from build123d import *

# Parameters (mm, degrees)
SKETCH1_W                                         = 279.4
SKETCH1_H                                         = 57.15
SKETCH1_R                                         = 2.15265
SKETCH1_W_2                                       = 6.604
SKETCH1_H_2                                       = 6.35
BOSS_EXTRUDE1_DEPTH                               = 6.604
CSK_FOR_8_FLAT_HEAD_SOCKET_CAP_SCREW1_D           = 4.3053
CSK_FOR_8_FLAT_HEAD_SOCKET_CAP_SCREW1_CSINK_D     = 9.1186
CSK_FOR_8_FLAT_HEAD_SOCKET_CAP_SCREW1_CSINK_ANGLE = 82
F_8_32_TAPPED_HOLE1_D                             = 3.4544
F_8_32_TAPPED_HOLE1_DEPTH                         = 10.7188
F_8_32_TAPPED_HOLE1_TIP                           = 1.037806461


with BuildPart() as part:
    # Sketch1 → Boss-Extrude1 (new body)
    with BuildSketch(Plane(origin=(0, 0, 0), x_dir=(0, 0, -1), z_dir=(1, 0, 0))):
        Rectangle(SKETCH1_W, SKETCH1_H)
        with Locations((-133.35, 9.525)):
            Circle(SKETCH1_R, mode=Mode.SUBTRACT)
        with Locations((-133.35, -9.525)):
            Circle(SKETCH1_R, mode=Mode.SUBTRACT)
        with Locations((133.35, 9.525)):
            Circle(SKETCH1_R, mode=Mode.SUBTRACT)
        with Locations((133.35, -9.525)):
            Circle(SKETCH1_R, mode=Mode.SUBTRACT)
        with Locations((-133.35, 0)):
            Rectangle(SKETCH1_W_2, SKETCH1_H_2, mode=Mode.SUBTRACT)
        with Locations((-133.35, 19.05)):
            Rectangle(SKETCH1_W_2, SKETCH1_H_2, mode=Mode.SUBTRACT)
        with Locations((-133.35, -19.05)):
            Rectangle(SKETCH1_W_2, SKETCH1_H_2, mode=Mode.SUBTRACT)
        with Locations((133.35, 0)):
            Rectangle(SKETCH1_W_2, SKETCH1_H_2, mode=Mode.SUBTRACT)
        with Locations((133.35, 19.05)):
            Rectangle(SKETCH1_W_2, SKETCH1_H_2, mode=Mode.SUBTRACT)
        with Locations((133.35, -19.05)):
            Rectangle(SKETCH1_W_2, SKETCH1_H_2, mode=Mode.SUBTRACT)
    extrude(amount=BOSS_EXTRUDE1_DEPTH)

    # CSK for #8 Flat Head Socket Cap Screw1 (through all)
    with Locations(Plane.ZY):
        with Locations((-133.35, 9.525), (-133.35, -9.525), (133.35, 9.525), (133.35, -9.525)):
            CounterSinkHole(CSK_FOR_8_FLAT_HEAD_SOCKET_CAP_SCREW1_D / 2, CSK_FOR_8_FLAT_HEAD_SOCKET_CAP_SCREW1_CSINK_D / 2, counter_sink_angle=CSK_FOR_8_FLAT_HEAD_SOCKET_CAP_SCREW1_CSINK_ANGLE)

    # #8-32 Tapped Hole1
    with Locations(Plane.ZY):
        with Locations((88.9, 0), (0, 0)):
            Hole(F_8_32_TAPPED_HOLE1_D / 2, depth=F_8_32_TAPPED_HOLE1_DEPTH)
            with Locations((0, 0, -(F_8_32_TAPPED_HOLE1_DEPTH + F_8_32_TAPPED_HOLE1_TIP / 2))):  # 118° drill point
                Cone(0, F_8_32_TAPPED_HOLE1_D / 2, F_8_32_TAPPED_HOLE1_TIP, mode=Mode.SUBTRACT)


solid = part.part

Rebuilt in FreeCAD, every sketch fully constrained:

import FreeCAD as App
import Part
import Sketcher

V = App.Vector
Q = App.Units.Quantity

doc = App.newDocument("Part")
body = doc.addObject("PartDesign::Body", "Body")

# Sketch on YZ plane
sketch1 = body.newObject("Sketcher::SketchObject", "Sketch")
sketch1.AttachmentSupport = (doc.getObject("YZ_Plane"), [""])
sketch1.MapMode = "FlatFace"
sketch1.addGeometry(Part.LineSegment(V(28.6, 139.7, 0), V(-28.6, 139.7, 0)), False)
sketch1.addGeometry(Part.LineSegment(V(-28.6, 139.7, 0), V(-28.6, -139.7, 0)), False)
sketch1.addGeometry(Part.LineSegment(V(-28.6, -139.7, 0), V(28.6, -139.7, 0)), False)
sketch1.addGeometry(Part.LineSegment(V(28.6, -139.7, 0), V(28.6, 139.7, 0)), False)
sketch1.addGeometry(Part.LineSegment(V(-22.2, 130, 0), V(-22.2, 136.7, 0)), False)
sketch1.addGeometry(Part.LineSegment(V(-22.2, 136.7, 0), V(-15.9, 136.7, 0)), False)
sketch1.addGeometry(Part.LineSegment(V(-15.9, 136.7, 0), V(-15.9, 130, 0)), False)
sketch1.addGeometry(Part.LineSegment(V(-15.9, 130, 0), V(-22.2, 130, 0)), False)
sketch1.addGeometry(Part.Circle(V(-9.5, 133.3, 0), V(0, 0, 1), 2.2), False)
sketch1.addGeometry(Part.LineSegment(V(-22.2, -136.7, 0), V(-22.2, -130, 0)), False)
sketch1.addGeometry(Part.LineSegment(V(-22.2, -130, 0), V(-15.9, -130, 0)), False)
sketch1.addGeometry(Part.LineSegment(V(-15.9, -130, 0), V(-15.9, -136.7, 0)), False)
sketch1.addGeometry(Part.LineSegment(V(-15.9, -136.7, 0), V(-22.2, -136.7, 0)), False)
sketch1.addGeometry(Part.Circle(V(-9.5, -133.3, 0), V(0, 0, 1), 2.2), False)
sketch1.addGeometry(Part.LineSegment(V(-3.2, 130, 0), V(-3.2, 136.7, 0)), False)
sketch1.addGeometry(Part.LineSegment(V(-3.2, 136.7, 0), V(3.2, 136.7, 0)), False)
sketch1.addGeometry(Part.LineSegment(V(3.2, 136.7, 0), V(3.2, 130, 0)), False)
sketch1.addGeometry(Part.LineSegment(V(3.2, 130, 0), V(-3.2, 130, 0)), False)
sketch1.addGeometry(Part.Circle(V(9.5, 133.3, 0), V(0, 0, 1), 2.2), False)
sketch1.addGeometry(Part.LineSegment(V(15.9, 130, 0), V(15.9, 136.7, 0)), False)
sketch1.addGeometry(Part.LineSegment(V(15.9, 136.7, 0), V(22.2, 136.7, 0)), False)
sketch1.addGeometry(Part.LineSegment(V(22.2, 136.7, 0), V(22.2, 130, 0)), False)
sketch1.addGeometry(Part.LineSegment(V(22.2, 130, 0), V(15.9, 130, 0)), False)
sketch1.addGeometry(Part.LineSegment(V(-3.2, -136.7, 0), V(-3.2, -130, 0)), False)
sketch1.addGeometry(Part.LineSegment(V(-3.2, -130, 0), V(3.2, -130, 0)), False)
sketch1.addGeometry(Part.LineSegment(V(3.2, -130, 0), V(3.2, -136.7, 0)), False)
sketch1.addGeometry(Part.LineSegment(V(3.2, -136.7, 0), V(-3.2, -136.7, 0)), False)
sketch1.addGeometry(Part.Circle(V(9.5, -133.3, 0), V(0, 0, 1), 2.2), False)
sketch1.addGeometry(Part.LineSegment(V(15.9, -136.7, 0), V(15.9, -130, 0)), False)
sketch1.addGeometry(Part.LineSegment(V(15.9, -130, 0), V(22.2, -130, 0)), False)
sketch1.addGeometry(Part.LineSegment(V(22.2, -130, 0), V(22.2, -136.7, 0)), False)
sketch1.addGeometry(Part.LineSegment(V(22.2, -136.7, 0), V(15.9, -136.7, 0)), False)
sketch1.addConstraint(Sketcher.Constraint("Coincident", 0, 2, 1, 1))
sketch1.addConstraint(Sketcher.Constraint("Coincident", 1, 2, 2, 1))
sketch1.addConstraint(Sketcher.Constraint("Coincident", 2, 2, 3, 1))
sketch1.addConstraint(Sketcher.Constraint("Coincident", 3, 2, 0, 1))
sketch1.addConstraint(Sketcher.Constraint("Coincident", 4, 2, 5, 1))
sketch1.addConstraint(Sketcher.Constraint("Coincident", 5, 2, 6, 1))
sketch1.addConstraint(Sketcher.Constraint("Coincident", 6, 2, 7, 1))
sketch1.addConstraint(Sketcher.Constraint("Coincident", 7, 2, 4, 1))
sketch1.addConstraint(Sketcher.Constraint("Coincident", 9, 2, 10, 1))
sketch1.addConstraint(Sketcher.Constraint("Coincident", 10, 2, 11, 1))
sketch1.addConstraint(Sketcher.Constraint("Coincident", 11, 2, 12, 1))
sketch1.addConstraint(Sketcher.Constraint("Coincident", 12, 2, 9, 1))
sketch1.addConstraint(Sketcher.Constraint("Coincident", 14, 2, 15, 1))
sketch1.addConstraint(Sketcher.Constraint("Coincident", 15, 2, 16, 1))
sketch1.addConstraint(Sketcher.Constraint("Coincident", 16, 2, 17, 1))
sketch1.addConstraint(Sketcher.Constraint("Coincident", 17, 2, 14, 1))
sketch1.addConstraint(Sketcher.Constraint("Coincident", 19, 2, 20, 1))
sketch1.addConstraint(Sketcher.Constraint("Coincident", 20, 2, 21, 1))
sketch1.addConstraint(Sketcher.Constraint("Coincident", 21, 2, 22, 1))
sketch1.addConstraint(Sketcher.Constraint("Coincident", 22, 2, 19, 1))
sketch1.addConstraint(Sketcher.Constraint("Coincident", 23, 2, 24, 1))
sketch1.addConstraint(Sketcher.Constraint("Coincident", 24, 2, 25, 1))
sketch1.addConstraint(Sketcher.Constraint("Coincident", 25, 2, 26, 1))
sketch1.addConstraint(Sketcher.Constraint("Coincident", 26, 2, 23, 1))
sketch1.addConstraint(Sketcher.Constraint("Coincident", 28, 2, 29, 1))
sketch1.addConstraint(Sketcher.Constraint("Coincident", 29, 2, 30, 1))
sketch1.addConstraint(Sketcher.Constraint("Coincident", 30, 2, 31, 1))
sketch1.addConstraint(Sketcher.Constraint("Coincident", 31, 2, 28, 1))
sketch1.addConstraint(Sketcher.Constraint("Horizontal", 0))
sketch1.addConstraint(Sketcher.Constraint("Vertical", 1))
sketch1.addConstraint(Sketcher.Constraint("Horizontal", 2))
sketch1.addConstraint(Sketcher.Constraint("Vertical", 3))
sketch1.addConstraint(Sketcher.Constraint("Vertical", 4))
sketch1.addConstraint(Sketcher.Constraint("Horizontal", 5))
sketch1.addConstraint(Sketcher.Constraint("Vertical", 6))
sketch1.addConstraint(Sketcher.Constraint("Horizontal", 7))
sketch1.addConstraint(Sketcher.Constraint("Vertical", 9))
sketch1.addConstraint(Sketcher.Constraint("Horizontal", 10))
sketch1.addConstraint(Sketcher.Constraint("Vertical", 11))
sketch1.addConstraint(Sketcher.Constraint("Horizontal", 12))
sketch1.addConstraint(Sketcher.Constraint("Vertical", 14))
sketch1.addConstraint(Sketcher.Constraint("Horizontal", 15))
sketch1.addConstraint(Sketcher.Constraint("Vertical", 16))
sketch1.addConstraint(Sketcher.Constraint("Horizontal", 17))
sketch1.addConstraint(Sketcher.Constraint("Vertical", 19))
sketch1.addConstraint(Sketcher.Constraint("Horizontal", 20))
sketch1.addConstraint(Sketcher.Constraint("Vertical", 21))
sketch1.addConstraint(Sketcher.Constraint("Horizontal", 22))
sketch1.addConstraint(Sketcher.Constraint("Vertical", 23))
sketch1.addConstraint(Sketcher.Constraint("Horizontal", 24))
sketch1.addConstraint(Sketcher.Constraint("Vertical", 25))
sketch1.addConstraint(Sketcher.Constraint("Horizontal", 26))
sketch1.addConstraint(Sketcher.Constraint("Vertical", 28))
sketch1.addConstraint(Sketcher.Constraint("Horizontal", 29))
sketch1.addConstraint(Sketcher.Constraint("Vertical", 30))
sketch1.addConstraint(Sketcher.Constraint("Horizontal", 31))
sketch1.addConstraint(Sketcher.Constraint("Equal", 8, 13))
sketch1.addConstraint(Sketcher.Constraint("Equal", 13, 18))
sketch1.addConstraint(Sketcher.Constraint("Equal", 18, 27))
sketch1.addConstraint(Sketcher.Constraint("Symmetric", 13, 3, 18, 3, -1, 1))
sketch1.addConstraint(Sketcher.Constraint("Symmetric", 8, 3, 27, 3, -1, 1))
sketch1.addConstraint(Sketcher.Constraint("Symmetric", 0, 2, 2, 2, -1, 1))
sketch1.addConstraint(Sketcher.Constraint("Symmetric", 11, 2, 19, 2, -1, 1))
sketch1.addConstraint(Sketcher.Constraint("Symmetric", 9, 2, 21, 2, -1, 1))
sketch1.addConstraint(Sketcher.Constraint("Symmetric", 16, 2, 23, 2, -1, 1))
sketch1.addConstraint(Sketcher.Constraint("Symmetric", 14, 2, 25, 2, -1, 1))
sketch1.addConstraint(Sketcher.Constraint("Symmetric", 6, 2, 28, 2, -1, 1))
sketch1.addConstraint(Sketcher.Constraint("Symmetric", 4, 2, 30, 2, -1, 1))
sketch1.addConstraint(Sketcher.Constraint("Symmetric", 8, 3, 18, 3, -2))
sketch1.addConstraint(Sketcher.Constraint("Symmetric", 5, 2, 19, 2, -2))
sketch1.addConstraint(Sketcher.Constraint("Symmetric", 7, 2, 21, 2, -2))
sketch1.addConstraint(Sketcher.Constraint("Horizontal", 5, 2, 14, 2))
sketch1.addConstraint(Sketcher.Constraint("Horizontal", 7, 2, 16, 2))
sketch1.addConstraint(Sketcher.Constraint("Vertical", 17, 2, 23, 2))
sketch1.addConstraint(Sketcher.Constraint("Equal", 12, 15))
sketch1.addConstraint(Sketcher.Constraint("DistanceY", 1, 2, 1, 1, Q("11 in")))
sketch1.addConstraint(Sketcher.Constraint("DistanceX", 4, 2, 3, 2, Q("2 in")))
sketch1.addConstraint(Sketcher.Constraint("DistanceX", 5, 2, 18, 3, Q("1 in")))
sketch1.addConstraint(Sketcher.Constraint("Diameter", 8, Q("0.1695 in")))
sketch1.addConstraint(Sketcher.Constraint("DistanceX", 0, 2, 0, 1, Q("2.25 in")))
sketch1.addConstraint(Sketcher.Constraint("DistanceX", 5, 1, 5, 2, Q("0.25 in")))
sketch1.addConstraint(Sketcher.Constraint("DistanceY", 4, 1, 4, 2, Q("0.26 in")))
sketch1.addConstraint(Sketcher.Constraint("DistanceY", 13, 3, 8, 3, Q("10.5 in")))
sketch1.addConstraint(Sketcher.Constraint("DistanceY", -1, 1, 4, 2, Q("5.38 in")))
pad1 = body.newObject("PartDesign::Pad", "Pad")
pad1.Profile = sketch1
pad1.Length = Q("0.26 in")

# Sketch on YZ plane
sketch2 = body.newObject("Sketcher::SketchObject", "Sketch001")
sketch2.AttachmentSupport = (doc.getObject("YZ_Plane"), [""])
sketch2.MapMode = "FlatFace"
sketch2.addGeometry(Part.Circle(V(9.5, -133.3, 0), V(0, 0, 1), 2.2), False)
sketch2.addGeometry(Part.Circle(V(-9.5, -133.3, 0), V(0, 0, 1), 2.2), False)
sketch2.addGeometry(Part.Circle(V(9.5, 133.3, 0), V(0, 0, 1), 2.2), False)
sketch2.addGeometry(Part.Circle(V(-9.5, 133.3, 0), V(0, 0, 1), 2.2), False)
sketch2.addConstraint(Sketcher.Constraint("Equal", 0, 1))
sketch2.addConstraint(Sketcher.Constraint("Equal", 1, 2))
sketch2.addConstraint(Sketcher.Constraint("Equal", 2, 3))
sketch2.addConstraint(Sketcher.Constraint("Symmetric", 1, 3, 2, 3, -1, 1))
sketch2.addConstraint(Sketcher.Constraint("Symmetric", 0, 3, 3, 3, -1, 1))
sketch2.addConstraint(Sketcher.Constraint("Symmetric", 0, 3, 1, 3, -2))
sketch2.addConstraint(Sketcher.Constraint("Diameter", 0, Q("0.1695 in")))
sketch2.addConstraint(Sketcher.Constraint("DistanceY", 0, 3, 2, 3, Q("10.5 in")))
sketch2.addConstraint(Sketcher.Constraint("DistanceX", 1, 3, 0, 3, Q("0.75 in")))
doc.recompute()
hole = body.newObject("PartDesign::Hole", "Hole")
hole.Profile = sketch2
hole.ThreadType = "None"
hole.Diameter = Q("0.1695 in")
hole.DepthType = "ThroughAll"
hole.HoleCutType = "Countersink"
hole.HoleCutDiameter = Q("0.359 in")
hole.HoleCutCountersinkAngle = 82
hole.Reversed = True

# Sketch on YZ plane
sketch3 = body.newObject("Sketcher::SketchObject", "Sketch002")
sketch3.AttachmentSupport = (doc.getObject("YZ_Plane"), [""])
sketch3.MapMode = "FlatFace"
sketch3.addGeometry(Part.Circle(V(0, 88.9, 0), V(0, 0, 1), 1.7), False)
sketch3.addGeometry(Part.Circle(V(0, 0, 0), V(0, 0, 1), 1.7), False)
sketch3.addConstraint(Sketcher.Constraint("Coincident", 1, 3, -1, 1))
sketch3.addConstraint(Sketcher.Constraint("Equal", 0, 1))
sketch3.addConstraint(Sketcher.Constraint("PointOnObject", 0, 3, -2))
sketch3.addConstraint(Sketcher.Constraint("Diameter", 0, Q("0.136 in")))
sketch3.addConstraint(Sketcher.Constraint("DistanceY", -1, 1, 0, 3, Q("3.5 in")))
doc.recompute()
hole2 = body.newObject("PartDesign::Hole", "Hole001")
hole2.Profile = sketch3
hole2.ThreadType = "None"
hole2.Diameter = Q("0.136 in")
hole2.DepthType = "Dimension"
hole2.Depth = Q("0.422 in")
hole2.DrillPoint = "Angled"
hole2.DrillPointAngle = 118
hole2.Reversed = True

doc.recompute()
